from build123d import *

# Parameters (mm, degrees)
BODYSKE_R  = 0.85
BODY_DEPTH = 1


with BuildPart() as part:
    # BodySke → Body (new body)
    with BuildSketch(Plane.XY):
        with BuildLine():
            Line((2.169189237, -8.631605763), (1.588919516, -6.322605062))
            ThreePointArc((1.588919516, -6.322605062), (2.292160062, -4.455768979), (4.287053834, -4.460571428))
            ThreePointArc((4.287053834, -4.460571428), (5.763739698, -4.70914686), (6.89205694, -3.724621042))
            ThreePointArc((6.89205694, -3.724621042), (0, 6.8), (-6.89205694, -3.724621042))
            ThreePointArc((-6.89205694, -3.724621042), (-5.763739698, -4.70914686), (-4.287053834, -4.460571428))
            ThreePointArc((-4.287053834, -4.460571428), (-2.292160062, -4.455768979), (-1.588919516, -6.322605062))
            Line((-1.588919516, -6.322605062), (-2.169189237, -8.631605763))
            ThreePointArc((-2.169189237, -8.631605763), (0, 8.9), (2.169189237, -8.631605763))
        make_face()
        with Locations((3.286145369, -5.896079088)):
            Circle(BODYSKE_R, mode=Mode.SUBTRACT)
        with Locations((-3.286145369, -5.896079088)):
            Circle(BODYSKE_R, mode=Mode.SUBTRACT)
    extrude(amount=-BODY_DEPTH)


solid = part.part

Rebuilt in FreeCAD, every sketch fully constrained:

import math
import FreeCAD as App
import Part
import Sketcher

doc = App.newDocument("Part")
body = doc.addObject("PartDesign::Body", "Body")

# Sketch on XY plane
sketch1 = body.newObject("Sketcher::SketchObject", "Sketch")
sketch1.AttachmentSupport = (doc.getObject("XY_Plane"), [""])
sketch1.MapMode = "FlatFace"
sketch1.addGeometry([
    Part.LineSegment(App.Vector(1.6, -6.3, 0), App.Vector(2.2, -8.6, 0)),  # 0
    Part.ArcOfCircle(Part.Circle(App.Vector(0, 0, 0), App.Vector(0, 0, 1), 8.9), math.radians(-76), math.radians(256)),  # 1
    Part.LineSegment(App.Vector(-2.2, -8.6, 0), App.Vector(-1.6, -6.3, 0)),  # 2
    Part.ArcOfCircle(Part.Circle(App.Vector(-3.3, -5.9, 0), App.Vector(0, 0, 1), 1.8), math.radians(-14), math.radians(125)),  # 3
    Part.ArcOfCircle(Part.Circle(App.Vector(-5.3, -3, 0), App.Vector(0, 0, 1), 1.8), math.radians(-156), math.radians(-55)),  # 4
    Part.ArcOfCircle(Part.Circle(App.Vector(0, -0.7, 0), App.Vector(0, 0, 1), 7.5), math.radians(-24), math.radians(204)),  # 5
    Part.ArcOfCircle(Part.Circle(App.Vector(5.3, -3, 0), App.Vector(0, 0, 1), 1.8), math.radians(-125), math.radians(-24)),  # 6
    Part.ArcOfCircle(Part.Circle(App.Vector(3.3, -5.9, 0), App.Vector(0, 0, 1), 1.8), math.radians(55), math.radians(194)),  # 7
    Part.Circle(App.Vector(3.3, -5.9, 0), App.Vector(0, 0, 1), 0.8),  # 8
    Part.Circle(App.Vector(-3.3, -5.9, 0), App.Vector(0, 0, 1), 0.8),  # 9
], False)
sketch1.addConstraint([
    Sketcher.Constraint("Coincident", 0, 2, 1, 1),
    Sketcher.Constraint("Coincident", 1, 2, 2, 1),
    Sketcher.Constraint("Tangent", 2, 2, 3, 1),
    Sketcher.Constraint("Tangent", 3, 2, 4, 2),
    Sketcher.Constraint("Tangent", 4, 1, 5, 2),
    Sketcher.Constraint("Tangent", 5, 1, 6, 2),
    Sketcher.Constraint("Tangent", 6, 1, 7, 1),
    Sketcher.Constraint("Tangent", 7, 2, 0, 1),
    Sketcher.Constraint("Coincident", 1, 3, -1, 1),
    Sketcher.Constraint("Coincident", 8, 3, 7, 3),
    Sketcher.Constraint("Coincident", 9, 3, 3, 3),
    Sketcher.Constraint("Equal", 3, 4),
    Sketcher.Constraint("Equal", 4, 6),
    Sketcher.Constraint("Equal", 6, 7),
    Sketcher.Constraint("Equal", 8, 9),
    Sketcher.Constraint("Symmetric", 4, 3, 6, 3, -2),
    Sketcher.Constraint("Symmetric", 2, 2, 7, 2, -2),
    Sketcher.Constraint("Diameter", 8, 1.7),
    Sketcher.Constraint("Radius", 1, 8.9),
    Sketcher.Constraint("Radius", 3, 1.75),
    Sketcher.Constraint("Radius", 5, 7.518945),
    Sketcher.Constraint("DistanceY", 1, 2, 2, 2, 2.309001),
    Sketcher.Constraint("DistanceY", 3, 3, -1, 1, 5.896079),
    Sketcher.Constraint("DistanceX", -1, 1, 0, 2, 2.169189),
    Sketcher.Constraint("DistanceY", 3, 2, -1, 1, 4.460571),
])
pad1 = body.newObject("PartDesign::Pad", "Pad")
pad1.Profile = sketch1
pad1.Length = 1
pad1.Reversed = True

doc.recompute()
